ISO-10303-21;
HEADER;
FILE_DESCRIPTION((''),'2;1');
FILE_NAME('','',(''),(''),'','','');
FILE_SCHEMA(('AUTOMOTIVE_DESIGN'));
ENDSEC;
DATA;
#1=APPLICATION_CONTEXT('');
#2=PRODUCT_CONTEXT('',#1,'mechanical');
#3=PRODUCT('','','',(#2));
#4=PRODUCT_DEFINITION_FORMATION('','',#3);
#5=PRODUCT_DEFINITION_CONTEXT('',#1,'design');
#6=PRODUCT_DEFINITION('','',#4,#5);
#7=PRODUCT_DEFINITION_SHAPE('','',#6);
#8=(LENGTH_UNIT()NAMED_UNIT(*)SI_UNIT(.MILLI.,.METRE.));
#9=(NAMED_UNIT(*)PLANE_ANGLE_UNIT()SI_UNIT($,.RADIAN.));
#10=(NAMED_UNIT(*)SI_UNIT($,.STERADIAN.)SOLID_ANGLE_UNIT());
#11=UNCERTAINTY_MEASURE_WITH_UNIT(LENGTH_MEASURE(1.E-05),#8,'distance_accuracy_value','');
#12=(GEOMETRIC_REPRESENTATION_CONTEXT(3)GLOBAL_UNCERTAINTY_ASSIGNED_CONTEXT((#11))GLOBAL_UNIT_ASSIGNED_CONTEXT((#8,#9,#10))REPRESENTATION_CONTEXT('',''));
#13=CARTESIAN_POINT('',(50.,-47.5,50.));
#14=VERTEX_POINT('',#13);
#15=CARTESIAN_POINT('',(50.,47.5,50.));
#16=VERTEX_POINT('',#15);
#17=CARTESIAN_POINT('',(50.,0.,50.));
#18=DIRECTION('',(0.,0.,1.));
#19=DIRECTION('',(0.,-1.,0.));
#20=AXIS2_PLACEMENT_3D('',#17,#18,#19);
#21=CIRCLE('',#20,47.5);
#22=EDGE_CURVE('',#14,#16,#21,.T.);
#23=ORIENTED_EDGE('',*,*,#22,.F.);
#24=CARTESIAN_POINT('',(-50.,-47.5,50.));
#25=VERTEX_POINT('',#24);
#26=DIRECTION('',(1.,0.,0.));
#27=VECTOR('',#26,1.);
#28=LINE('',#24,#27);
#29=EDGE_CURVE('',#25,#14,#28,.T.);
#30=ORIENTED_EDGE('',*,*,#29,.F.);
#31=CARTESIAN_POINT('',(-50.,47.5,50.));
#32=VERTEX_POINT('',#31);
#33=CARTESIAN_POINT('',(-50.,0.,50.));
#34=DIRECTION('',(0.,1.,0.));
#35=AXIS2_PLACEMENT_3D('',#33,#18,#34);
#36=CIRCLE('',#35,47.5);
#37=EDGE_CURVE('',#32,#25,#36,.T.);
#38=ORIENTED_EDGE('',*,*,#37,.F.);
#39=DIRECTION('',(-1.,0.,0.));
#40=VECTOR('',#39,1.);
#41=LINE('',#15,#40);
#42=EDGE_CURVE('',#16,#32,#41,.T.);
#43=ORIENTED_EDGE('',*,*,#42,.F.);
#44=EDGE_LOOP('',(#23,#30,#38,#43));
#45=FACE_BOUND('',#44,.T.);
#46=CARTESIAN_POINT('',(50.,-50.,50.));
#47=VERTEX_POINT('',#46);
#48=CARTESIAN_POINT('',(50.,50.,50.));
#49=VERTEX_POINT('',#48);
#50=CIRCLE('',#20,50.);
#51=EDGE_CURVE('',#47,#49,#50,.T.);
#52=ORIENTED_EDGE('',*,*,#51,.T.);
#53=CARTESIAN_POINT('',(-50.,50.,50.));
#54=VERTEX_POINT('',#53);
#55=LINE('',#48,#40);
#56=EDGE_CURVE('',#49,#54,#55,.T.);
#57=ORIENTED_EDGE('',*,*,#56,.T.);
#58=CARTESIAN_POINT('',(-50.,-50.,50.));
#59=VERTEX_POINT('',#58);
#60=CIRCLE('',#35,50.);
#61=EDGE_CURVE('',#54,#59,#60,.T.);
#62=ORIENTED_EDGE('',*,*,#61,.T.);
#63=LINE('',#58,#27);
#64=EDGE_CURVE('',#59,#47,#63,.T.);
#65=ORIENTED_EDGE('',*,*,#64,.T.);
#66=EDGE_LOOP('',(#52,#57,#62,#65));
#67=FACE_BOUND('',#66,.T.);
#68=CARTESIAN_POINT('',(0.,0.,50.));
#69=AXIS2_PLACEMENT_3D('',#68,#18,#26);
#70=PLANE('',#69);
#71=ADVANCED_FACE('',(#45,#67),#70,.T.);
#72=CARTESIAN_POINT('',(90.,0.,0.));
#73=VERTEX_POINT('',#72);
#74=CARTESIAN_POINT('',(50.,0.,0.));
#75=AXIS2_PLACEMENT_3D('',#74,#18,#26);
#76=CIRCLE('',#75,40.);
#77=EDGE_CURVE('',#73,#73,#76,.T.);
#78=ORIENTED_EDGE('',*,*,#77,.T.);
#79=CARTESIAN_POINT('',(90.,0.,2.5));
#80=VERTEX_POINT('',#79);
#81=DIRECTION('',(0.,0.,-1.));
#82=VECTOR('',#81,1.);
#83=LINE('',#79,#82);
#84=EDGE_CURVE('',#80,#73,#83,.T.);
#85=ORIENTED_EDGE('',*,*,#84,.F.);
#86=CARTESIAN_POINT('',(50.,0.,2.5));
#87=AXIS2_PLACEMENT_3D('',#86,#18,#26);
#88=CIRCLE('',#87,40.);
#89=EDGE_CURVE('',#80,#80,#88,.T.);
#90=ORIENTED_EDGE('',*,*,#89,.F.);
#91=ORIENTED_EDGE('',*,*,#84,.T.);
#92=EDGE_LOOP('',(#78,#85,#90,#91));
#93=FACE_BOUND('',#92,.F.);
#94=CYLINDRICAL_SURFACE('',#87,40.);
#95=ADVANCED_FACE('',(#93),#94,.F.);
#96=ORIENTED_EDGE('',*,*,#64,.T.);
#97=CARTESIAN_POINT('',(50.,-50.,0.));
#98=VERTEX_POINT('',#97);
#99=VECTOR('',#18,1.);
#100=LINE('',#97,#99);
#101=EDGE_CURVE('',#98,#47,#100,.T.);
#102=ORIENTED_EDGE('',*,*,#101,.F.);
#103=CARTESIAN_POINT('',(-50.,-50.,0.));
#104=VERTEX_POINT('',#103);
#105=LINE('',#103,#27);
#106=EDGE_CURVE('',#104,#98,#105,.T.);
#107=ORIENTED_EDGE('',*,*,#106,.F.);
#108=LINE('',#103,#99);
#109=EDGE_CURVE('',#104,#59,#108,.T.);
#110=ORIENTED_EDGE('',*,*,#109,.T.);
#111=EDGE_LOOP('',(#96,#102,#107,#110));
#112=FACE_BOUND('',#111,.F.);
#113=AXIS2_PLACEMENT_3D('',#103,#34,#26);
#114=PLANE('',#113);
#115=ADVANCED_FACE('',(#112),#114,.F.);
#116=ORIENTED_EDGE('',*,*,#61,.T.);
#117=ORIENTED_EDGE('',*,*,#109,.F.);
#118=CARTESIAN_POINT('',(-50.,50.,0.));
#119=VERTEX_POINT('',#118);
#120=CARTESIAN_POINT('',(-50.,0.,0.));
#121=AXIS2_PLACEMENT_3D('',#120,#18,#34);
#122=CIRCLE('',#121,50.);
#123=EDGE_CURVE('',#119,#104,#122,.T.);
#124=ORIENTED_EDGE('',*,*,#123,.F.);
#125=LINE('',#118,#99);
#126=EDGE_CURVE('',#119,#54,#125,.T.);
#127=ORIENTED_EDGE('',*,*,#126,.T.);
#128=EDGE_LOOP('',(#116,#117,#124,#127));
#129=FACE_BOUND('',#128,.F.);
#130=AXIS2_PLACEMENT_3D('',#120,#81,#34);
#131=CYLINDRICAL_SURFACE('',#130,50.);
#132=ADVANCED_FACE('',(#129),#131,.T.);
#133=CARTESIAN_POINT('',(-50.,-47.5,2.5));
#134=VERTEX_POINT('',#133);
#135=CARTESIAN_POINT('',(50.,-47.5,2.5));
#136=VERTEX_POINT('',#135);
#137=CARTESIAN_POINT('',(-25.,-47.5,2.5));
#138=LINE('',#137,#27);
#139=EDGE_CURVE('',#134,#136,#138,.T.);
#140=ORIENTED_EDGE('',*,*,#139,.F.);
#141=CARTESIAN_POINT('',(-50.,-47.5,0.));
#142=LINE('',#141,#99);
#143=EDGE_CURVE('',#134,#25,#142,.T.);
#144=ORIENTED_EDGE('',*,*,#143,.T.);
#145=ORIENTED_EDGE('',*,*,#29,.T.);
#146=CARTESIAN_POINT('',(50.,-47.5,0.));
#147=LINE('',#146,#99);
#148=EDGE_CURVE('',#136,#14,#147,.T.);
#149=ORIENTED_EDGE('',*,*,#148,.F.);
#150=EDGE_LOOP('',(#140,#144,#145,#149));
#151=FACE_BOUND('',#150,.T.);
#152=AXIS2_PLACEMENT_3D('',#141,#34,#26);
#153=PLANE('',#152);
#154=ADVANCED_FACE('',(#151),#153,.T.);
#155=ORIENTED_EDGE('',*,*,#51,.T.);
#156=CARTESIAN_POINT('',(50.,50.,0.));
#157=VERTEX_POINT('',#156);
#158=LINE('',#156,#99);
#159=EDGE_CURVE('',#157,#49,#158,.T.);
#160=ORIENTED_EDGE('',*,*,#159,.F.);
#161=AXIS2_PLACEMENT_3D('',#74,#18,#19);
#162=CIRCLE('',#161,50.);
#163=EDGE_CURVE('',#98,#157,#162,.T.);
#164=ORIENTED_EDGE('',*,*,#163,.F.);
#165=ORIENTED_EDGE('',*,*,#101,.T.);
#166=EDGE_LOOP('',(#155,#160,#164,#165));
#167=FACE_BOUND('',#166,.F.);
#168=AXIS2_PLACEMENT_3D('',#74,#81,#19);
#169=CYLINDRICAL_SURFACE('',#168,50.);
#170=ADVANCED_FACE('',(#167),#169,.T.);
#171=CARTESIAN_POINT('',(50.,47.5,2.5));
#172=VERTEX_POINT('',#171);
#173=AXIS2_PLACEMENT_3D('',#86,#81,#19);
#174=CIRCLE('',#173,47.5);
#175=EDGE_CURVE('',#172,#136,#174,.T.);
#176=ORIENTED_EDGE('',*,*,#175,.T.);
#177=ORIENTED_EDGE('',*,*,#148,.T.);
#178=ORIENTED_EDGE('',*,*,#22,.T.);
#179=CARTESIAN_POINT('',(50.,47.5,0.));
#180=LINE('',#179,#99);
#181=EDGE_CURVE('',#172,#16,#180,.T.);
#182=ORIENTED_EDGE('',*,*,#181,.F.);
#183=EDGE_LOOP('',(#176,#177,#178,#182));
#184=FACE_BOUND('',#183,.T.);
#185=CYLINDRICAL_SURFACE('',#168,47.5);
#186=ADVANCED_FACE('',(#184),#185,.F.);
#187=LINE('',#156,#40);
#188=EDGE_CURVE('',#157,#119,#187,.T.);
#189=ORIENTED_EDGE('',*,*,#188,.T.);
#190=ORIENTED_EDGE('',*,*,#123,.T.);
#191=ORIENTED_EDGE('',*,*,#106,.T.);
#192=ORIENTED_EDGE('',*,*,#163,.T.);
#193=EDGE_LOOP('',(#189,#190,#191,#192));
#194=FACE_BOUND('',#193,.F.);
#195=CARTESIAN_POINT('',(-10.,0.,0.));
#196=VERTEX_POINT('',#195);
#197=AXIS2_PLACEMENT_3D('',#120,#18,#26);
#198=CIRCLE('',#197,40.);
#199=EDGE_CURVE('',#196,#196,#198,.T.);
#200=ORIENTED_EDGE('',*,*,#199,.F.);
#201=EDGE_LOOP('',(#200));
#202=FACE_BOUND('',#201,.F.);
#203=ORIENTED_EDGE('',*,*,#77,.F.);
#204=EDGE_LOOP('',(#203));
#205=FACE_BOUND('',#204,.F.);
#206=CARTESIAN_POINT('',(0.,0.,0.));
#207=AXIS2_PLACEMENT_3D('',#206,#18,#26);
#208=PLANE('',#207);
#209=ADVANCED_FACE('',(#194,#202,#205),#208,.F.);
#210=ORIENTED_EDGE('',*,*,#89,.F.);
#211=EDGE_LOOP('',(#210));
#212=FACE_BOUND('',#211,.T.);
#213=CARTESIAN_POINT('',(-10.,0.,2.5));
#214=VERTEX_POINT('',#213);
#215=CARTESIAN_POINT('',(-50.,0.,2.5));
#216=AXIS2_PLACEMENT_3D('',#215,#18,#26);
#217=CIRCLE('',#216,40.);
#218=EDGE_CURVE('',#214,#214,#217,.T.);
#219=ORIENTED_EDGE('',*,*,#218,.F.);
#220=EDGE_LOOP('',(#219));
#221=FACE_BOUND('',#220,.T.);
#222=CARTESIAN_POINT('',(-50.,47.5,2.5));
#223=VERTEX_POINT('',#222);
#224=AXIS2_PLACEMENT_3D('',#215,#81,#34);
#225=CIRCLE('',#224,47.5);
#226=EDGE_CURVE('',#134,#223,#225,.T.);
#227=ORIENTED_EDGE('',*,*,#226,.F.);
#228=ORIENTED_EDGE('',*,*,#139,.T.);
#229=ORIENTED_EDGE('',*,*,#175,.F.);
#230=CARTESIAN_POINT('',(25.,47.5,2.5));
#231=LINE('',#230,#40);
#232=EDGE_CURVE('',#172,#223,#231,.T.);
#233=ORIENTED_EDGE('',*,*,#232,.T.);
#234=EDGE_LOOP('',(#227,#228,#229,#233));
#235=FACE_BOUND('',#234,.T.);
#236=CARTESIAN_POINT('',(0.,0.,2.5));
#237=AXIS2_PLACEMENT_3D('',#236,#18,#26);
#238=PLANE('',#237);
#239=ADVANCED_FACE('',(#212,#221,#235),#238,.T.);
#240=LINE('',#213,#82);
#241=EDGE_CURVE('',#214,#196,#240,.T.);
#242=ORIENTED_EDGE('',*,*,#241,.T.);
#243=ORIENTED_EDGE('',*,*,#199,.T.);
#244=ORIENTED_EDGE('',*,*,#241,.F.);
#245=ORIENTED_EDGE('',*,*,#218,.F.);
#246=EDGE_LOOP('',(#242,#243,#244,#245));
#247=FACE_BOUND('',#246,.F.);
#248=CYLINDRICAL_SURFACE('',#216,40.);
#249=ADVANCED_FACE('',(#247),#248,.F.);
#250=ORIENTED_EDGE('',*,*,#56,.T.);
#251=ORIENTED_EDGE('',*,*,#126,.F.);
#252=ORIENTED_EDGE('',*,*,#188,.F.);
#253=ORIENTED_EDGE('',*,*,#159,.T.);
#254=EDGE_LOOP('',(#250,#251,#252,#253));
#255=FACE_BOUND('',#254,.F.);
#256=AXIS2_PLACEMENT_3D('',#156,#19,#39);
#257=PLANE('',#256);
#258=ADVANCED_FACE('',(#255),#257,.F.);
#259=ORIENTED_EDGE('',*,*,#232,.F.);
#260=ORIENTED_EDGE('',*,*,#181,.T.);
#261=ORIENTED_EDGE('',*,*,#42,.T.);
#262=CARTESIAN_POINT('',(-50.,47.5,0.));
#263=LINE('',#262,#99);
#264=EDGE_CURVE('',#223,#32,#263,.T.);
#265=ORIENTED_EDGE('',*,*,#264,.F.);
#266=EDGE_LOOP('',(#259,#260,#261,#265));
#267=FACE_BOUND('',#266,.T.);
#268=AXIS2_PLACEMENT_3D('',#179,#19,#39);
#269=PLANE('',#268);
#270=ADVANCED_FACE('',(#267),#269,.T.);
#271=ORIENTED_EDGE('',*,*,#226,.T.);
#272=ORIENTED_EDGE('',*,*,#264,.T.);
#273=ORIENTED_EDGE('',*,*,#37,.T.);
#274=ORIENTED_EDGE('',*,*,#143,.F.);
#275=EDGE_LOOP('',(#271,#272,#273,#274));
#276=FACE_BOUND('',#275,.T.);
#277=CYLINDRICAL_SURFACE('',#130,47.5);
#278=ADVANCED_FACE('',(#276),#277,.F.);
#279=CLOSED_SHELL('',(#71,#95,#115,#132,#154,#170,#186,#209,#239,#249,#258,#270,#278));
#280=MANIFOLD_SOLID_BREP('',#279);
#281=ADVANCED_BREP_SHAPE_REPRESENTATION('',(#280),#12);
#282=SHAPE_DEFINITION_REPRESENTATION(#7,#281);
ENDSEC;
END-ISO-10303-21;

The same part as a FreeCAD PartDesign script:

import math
import FreeCAD as App
import Part
import Sketcher


def faces_at(feature, points):
    """Names of the faces that lie closest to the given points."""
    faces = feature.Shape.Faces
    near = lambda p: min(range(len(faces)), key=lambda i: faces[i].distToShape(Part.Vertex(*p))[0])
    return sorted({f"Face{near(p) + 1}" for p in points})

doc = App.newDocument("Part")
body = doc.addObject("PartDesign::Body", "Body")

sketch1 = body.newObject("Sketcher::SketchObject", "Sketch")
sketch1.AttachmentSupport = (doc.getObject("XY_Plane"), [""])
sketch1.MapMode = "FlatFace"
sketch1.addGeometry([
    Part.LineSegment(App.Vector(50, 50, 0), App.Vector(-50, 50, 0)),
    Part.ArcOfCircle(Part.Circle(App.Vector(-50, 0, 0), App.Vector(0, 0, 1), 50), math.radians(90), math.radians(270)),
    Part.LineSegment(App.Vector(-50, -50, 0), App.Vector(50, -50, 0)),
    Part.ArcOfCircle(Part.Circle(App.Vector(50, 0, 0), App.Vector(0, 0, 1), 50), math.radians(-90), math.radians(90)),
], False)
sketch1.addConstraint([
    Sketcher.Constraint("Tangent", 0, 2, 1, 1),
    Sketcher.Constraint("Tangent", 1, 2, 2, 1),
    Sketcher.Constraint("Tangent", 2, 2, 3, 1),
    Sketcher.Constraint("Tangent", 3, 2, 0, 1),
    Sketcher.Constraint("Horizontal", 0),
    Sketcher.Constraint("Horizontal", 2),
    Sketcher.Constraint("Symmetric", 1, 3, 3, 3, -1, 1),
    Sketcher.Constraint("Radius", 1, 50.0),
    Sketcher.Constraint("DistanceX", 0, 2, 0, 1, 100.0),
])
pad1 = body.newObject("PartDesign::Pad", "Pad")
pad1.Profile = sketch1
pad1.Length = 50
doc.recompute()

thickness = body.newObject("PartDesign::Thickness", "Thickness")
thickness.Base = (pad1, faces_at(pad1, [(0, 0, 50)]))
thickness.Value = 2.5
thickness.Reversed = True
thickness.Join = "Arc"

sketch2 = body.newObject("Sketcher::SketchObject", "Sketch001")
sketch2.AttachmentSupport = (doc.getObject("XY_Plane"), [""])
sketch2.MapMode = "FlatFace"
sketch2.AttachmentOffset = App.Placement(App.Vector(0, 0, 2.5), App.Rotation())
sketch2.addGeometry([
    Part.Circle(App.Vector(-50, 0, 0), App.Vector(0, 0, 1), 40),
    Part.Circle(App.Vector(50, 0, 0), App.Vector(0, 0, 1), 40),
], False)
sketch2.addConstraint([
    Sketcher.Constraint("Equal", 0, 1),
    Sketcher.Constraint("Symmetric", 0, 3, 1, 3, -1, 1),
    Sketcher.Constraint("PointOnObject", 0, 3, -1),
    Sketcher.Constraint("Diameter", 0, 80.0),
    Sketcher.Constraint("DistanceX", 0, 3, -1, 1, 50.0),
])
pocket1 = body.newObject("PartDesign::Pocket", "Pocket")
pocket1.Profile = sketch2
pocket1.Length = 25

doc.recompute()
